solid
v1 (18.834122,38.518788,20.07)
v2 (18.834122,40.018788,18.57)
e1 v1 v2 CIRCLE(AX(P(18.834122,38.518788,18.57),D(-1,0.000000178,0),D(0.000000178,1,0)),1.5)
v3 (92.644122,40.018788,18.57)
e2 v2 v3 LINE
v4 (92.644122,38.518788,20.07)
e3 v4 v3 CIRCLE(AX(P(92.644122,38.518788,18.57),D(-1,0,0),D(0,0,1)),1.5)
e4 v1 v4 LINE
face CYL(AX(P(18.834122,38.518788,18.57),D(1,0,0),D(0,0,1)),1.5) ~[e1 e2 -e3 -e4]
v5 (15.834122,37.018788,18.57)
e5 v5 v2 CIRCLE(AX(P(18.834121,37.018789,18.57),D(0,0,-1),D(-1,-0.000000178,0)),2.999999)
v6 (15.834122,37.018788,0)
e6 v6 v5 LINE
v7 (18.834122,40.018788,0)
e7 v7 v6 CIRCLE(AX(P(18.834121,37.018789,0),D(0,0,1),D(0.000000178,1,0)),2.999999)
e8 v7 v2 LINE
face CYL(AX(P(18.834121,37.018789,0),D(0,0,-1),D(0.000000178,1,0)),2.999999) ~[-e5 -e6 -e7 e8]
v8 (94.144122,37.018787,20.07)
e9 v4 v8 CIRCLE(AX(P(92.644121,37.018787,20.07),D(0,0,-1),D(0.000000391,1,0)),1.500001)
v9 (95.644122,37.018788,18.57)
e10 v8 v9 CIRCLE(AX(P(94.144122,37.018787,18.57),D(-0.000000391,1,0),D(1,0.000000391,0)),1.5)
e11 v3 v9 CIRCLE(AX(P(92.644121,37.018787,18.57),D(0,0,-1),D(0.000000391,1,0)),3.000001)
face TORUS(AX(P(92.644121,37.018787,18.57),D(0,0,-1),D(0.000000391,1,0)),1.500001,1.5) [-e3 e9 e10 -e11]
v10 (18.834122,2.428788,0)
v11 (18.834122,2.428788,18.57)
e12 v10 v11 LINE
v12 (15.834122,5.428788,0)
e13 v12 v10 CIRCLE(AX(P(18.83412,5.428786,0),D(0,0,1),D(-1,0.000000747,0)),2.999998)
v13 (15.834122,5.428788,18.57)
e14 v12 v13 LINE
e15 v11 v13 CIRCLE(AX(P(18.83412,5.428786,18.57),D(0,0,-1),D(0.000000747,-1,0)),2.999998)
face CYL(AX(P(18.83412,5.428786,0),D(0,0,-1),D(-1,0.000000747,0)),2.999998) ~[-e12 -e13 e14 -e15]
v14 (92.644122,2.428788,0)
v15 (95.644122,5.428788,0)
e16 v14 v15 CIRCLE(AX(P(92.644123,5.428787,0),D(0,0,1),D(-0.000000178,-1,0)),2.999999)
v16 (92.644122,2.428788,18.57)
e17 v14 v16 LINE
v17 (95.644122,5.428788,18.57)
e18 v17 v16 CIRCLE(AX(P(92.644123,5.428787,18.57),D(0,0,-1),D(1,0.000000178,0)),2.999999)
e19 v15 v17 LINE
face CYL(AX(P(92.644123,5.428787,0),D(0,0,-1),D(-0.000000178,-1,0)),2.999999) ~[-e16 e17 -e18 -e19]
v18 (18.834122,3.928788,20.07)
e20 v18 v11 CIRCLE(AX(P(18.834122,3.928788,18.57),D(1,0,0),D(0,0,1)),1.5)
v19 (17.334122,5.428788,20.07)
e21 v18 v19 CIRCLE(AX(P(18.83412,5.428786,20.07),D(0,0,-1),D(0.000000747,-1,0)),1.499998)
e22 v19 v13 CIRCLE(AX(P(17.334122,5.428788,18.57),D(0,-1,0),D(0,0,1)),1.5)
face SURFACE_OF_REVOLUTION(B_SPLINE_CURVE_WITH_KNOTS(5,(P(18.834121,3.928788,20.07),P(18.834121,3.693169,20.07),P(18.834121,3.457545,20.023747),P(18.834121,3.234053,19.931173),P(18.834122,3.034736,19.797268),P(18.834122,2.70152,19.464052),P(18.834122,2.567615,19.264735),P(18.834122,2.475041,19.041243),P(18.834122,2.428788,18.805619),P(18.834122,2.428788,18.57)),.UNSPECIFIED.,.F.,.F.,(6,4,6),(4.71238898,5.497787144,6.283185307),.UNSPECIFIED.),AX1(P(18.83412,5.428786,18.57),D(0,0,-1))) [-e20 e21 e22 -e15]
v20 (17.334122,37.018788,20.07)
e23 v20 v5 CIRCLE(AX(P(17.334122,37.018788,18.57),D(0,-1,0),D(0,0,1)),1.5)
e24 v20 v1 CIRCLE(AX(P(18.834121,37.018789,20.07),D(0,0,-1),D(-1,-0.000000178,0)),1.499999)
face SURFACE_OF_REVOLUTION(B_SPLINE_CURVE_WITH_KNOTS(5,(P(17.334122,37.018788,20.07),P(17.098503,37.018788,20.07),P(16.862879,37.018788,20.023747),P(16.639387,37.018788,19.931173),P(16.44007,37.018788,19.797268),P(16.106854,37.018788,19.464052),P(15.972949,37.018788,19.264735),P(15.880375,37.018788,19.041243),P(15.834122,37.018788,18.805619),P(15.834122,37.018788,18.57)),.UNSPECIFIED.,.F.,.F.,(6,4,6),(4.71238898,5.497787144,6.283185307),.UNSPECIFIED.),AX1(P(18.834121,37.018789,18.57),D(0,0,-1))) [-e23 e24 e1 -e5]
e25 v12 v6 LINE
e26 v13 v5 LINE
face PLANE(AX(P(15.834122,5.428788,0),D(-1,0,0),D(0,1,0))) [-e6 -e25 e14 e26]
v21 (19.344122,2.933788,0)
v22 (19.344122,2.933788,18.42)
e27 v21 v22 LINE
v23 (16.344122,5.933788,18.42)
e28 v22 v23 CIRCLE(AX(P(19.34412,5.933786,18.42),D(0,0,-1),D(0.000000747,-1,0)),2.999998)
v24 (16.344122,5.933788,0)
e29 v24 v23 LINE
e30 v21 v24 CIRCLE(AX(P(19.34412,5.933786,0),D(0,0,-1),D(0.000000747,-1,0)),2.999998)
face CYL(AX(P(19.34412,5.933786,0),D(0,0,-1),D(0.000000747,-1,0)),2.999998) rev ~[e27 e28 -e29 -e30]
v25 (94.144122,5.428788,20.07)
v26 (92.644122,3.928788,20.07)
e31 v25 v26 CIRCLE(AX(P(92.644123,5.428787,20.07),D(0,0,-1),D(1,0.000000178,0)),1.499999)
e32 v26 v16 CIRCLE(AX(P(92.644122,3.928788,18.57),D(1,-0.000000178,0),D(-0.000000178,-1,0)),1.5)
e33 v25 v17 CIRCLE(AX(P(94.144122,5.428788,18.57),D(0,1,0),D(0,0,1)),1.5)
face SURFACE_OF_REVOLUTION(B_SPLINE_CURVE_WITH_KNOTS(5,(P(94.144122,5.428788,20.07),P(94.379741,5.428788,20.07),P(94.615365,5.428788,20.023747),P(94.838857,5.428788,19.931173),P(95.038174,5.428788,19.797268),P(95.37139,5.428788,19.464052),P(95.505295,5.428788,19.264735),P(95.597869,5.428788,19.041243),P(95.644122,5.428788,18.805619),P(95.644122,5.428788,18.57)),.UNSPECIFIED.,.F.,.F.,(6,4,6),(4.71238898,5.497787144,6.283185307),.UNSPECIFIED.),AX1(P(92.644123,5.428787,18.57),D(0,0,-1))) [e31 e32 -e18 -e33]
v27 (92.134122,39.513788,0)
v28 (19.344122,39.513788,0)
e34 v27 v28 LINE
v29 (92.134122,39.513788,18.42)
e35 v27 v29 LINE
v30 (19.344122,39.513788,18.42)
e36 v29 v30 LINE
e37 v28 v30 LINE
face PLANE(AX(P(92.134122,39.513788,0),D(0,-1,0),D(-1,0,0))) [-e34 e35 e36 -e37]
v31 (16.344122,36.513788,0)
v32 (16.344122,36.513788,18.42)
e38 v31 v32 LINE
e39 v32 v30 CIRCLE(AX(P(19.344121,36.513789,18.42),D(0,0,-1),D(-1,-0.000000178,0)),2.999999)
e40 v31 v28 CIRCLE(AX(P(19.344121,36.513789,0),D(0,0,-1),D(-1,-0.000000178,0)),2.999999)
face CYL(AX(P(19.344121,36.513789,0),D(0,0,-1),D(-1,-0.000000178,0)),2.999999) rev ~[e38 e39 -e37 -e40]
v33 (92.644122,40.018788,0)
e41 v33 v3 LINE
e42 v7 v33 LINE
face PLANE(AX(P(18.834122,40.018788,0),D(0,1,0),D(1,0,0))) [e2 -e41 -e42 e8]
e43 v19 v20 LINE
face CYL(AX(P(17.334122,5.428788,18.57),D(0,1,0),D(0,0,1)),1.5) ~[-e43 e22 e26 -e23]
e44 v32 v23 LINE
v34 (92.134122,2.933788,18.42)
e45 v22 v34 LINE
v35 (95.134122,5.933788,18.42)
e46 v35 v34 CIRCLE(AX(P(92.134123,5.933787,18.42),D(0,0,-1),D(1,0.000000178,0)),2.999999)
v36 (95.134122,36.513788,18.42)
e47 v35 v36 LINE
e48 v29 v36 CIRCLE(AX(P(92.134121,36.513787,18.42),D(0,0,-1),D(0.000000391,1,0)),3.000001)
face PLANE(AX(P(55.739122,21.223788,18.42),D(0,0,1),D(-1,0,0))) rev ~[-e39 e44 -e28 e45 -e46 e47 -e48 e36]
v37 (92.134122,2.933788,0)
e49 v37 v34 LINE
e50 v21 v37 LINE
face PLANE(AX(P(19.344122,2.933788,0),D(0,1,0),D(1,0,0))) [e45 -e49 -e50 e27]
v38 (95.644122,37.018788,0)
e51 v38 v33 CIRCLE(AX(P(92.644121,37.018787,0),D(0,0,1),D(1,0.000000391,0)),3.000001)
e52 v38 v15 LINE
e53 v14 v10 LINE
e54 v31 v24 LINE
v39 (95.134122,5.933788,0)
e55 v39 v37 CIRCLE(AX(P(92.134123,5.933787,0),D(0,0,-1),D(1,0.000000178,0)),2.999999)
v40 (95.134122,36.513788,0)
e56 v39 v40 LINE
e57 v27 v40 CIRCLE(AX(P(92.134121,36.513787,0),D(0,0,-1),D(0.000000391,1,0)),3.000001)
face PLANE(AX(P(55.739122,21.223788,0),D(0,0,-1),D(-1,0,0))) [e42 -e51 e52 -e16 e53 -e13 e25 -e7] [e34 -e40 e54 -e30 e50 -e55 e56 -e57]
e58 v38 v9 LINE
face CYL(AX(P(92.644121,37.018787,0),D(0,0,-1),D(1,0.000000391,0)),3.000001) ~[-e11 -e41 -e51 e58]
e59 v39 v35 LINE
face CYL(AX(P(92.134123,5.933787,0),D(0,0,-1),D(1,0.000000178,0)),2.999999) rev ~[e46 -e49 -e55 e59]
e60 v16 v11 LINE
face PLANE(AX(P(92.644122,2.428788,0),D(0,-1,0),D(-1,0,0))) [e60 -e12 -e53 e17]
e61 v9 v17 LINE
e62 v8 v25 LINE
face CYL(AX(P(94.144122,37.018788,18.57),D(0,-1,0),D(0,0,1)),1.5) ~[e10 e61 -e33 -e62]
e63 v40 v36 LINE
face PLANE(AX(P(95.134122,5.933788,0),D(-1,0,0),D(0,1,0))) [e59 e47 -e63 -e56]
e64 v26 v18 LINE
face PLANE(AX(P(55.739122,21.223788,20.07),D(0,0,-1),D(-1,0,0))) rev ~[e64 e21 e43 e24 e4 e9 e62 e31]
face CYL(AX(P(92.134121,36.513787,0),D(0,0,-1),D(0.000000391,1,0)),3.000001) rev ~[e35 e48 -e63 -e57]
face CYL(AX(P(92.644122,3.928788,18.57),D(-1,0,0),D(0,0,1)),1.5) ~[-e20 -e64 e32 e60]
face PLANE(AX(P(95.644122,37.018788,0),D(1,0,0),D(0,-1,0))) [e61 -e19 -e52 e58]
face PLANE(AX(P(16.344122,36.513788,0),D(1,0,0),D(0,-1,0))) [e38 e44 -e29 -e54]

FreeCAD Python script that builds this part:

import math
import FreeCAD as App
import Part
import Sketcher
from FreeCAD import Vector
Q = App.Units.Quantity


def edges_at(feature, points):
    """Names of the edges that pass closest to the given points."""
    edges = feature.Shape.Edges
    near = lambda p: min(range(len(edges)), key=lambda i: edges[i].distToShape(Part.Vertex(*p))[0])
    return sorted({f"Edge{near(p) + 1}" for p in points})

doc = App.newDocument("Part")
body = doc.addObject("PartDesign::Body", "Body")

sketch1 = body.newObject("Sketcher::SketchObject", "Sketch")
sketch1.AttachmentSupport = (doc.getObject("XY_Plane"), [""])
sketch1.MapMode = "FlatFace"
sketch1.addGeometry([
    Part.LineSegment(Vector(92.644122, 40.018788, 0), Vector(18.834122, 40.018788, 0)),
    Part.ArcOfCircle(Part.Circle(Vector(18.834121, 37.018789, 0), Vector(0, 0, 1), 2.999999), math.radians(89.99999), math.radians(180.00001)),
    Part.LineSegment(Vector(15.834122, 37.018788, 0), Vector(15.834122, 5.428788, 0)),
    Part.ArcOfCircle(Part.Circle(Vector(18.83412, 5.428786, 0), Vector(0, 0, 1), 2.999998), math.radians(179.999957), math.radians(270.000043)),
    Part.LineSegment(Vector(18.834122, 2.428788, 0), Vector(92.644122, 2.428788, 0)),
    Part.ArcOfCircle(Part.Circle(Vector(92.644123, 5.428787, 0), Vector(0, 0, 1), 2.999999), math.radians(-90.00001), math.radians(0.00001)),
    Part.LineSegment(Vector(95.644122, 5.428788, 0), Vector(95.644122, 37.018788, 0)),
    Part.ArcOfCircle(Part.Circle(Vector(92.644121, 37.018787, 0), Vector(0, 0, 1), 3.000001), math.radians(0.000022), math.radians(89.999978)),
], False)
sketch1.addConstraint([
    Sketcher.Constraint("Tangent", 0, 2, 1, 1),
    Sketcher.Constraint("Tangent", 1, 2, 2, 1),
    Sketcher.Constraint("Tangent", 2, 2, 3, 1),
    Sketcher.Constraint("Tangent", 3, 2, 4, 1),
    Sketcher.Constraint("Tangent", 4, 2, 5, 1),
    Sketcher.Constraint("Tangent", 5, 2, 6, 1),
    Sketcher.Constraint("Tangent", 6, 2, 7, 1),
    Sketcher.Constraint("Tangent", 7, 2, 0, 1),
    Sketcher.Constraint("Horizontal", 0),
    Sketcher.Constraint("Vertical", 2),
    Sketcher.Constraint("Horizontal", 4),
    Sketcher.Constraint("Vertical", 6),
    Sketcher.Constraint("Equal", 1, 3),
    Sketcher.Constraint("Equal", 3, 5),
    Sketcher.Constraint("Equal", 5, 7),
    Sketcher.Constraint("Radius", 1, Q("2.999999 mm")),
    Sketcher.Constraint("DistanceX", 0, 2, 0, 1, Q("73.81 mm")),
    Sketcher.Constraint("DistanceY", 2, 2, 2, 1, Q("31.59 mm")),
    Sketcher.Constraint("DistanceX", -1, 1, 1, 3, Q("18.834121 mm")),
    Sketcher.Constraint("DistanceY", -1, 1, 1, 3, Q("37.018789 mm")),
])
pad1 = body.newObject("PartDesign::Pad", "Pad")
pad1.Profile = sketch1
pad1.Length = 20.07

sketch2 = body.newObject("Sketcher::SketchObject", "Sketch001")
sketch2.AttachmentSupport = (doc.getObject("XY_Plane"), [""])
sketch2.MapMode = "FlatFace"
sketch2.addGeometry([
    Part.LineSegment(Vector(92.134122, 2.933788, 0), Vector(19.344122, 2.933788, 0)),
    Part.ArcOfCircle(Part.Circle(Vector(19.34412, 5.933786, 0), Vector(0, 0, 1), 2.999998), math.radians(179.999957), math.radians(270.000043)),
    Part.LineSegment(Vector(16.344122, 5.933788, 0), Vector(16.344122, 36.513788, 0)),
    Part.ArcOfCircle(Part.Circle(Vector(19.344121, 36.513789, 0), Vector(0, 0, 1), 2.999999), math.radians(89.99999), math.radians(180.00001)),
    Part.LineSegment(Vector(19.344122, 39.513788, 0), Vector(92.134122, 39.513788, 0)),
    Part.ArcOfCircle(Part.Circle(Vector(92.134121, 36.513787, 0), Vector(0, 0, 1), 3.000001), math.radians(0.000022), math.radians(89.999978)),
    Part.LineSegment(Vector(95.134122, 36.513788, 0), Vector(95.134122, 5.933788, 0)),
    Part.ArcOfCircle(Part.Circle(Vector(92.134123, 5.933787, 0), Vector(0, 0, 1), 2.999999), math.radians(-90.00001), math.radians(0.00001)),
], False)
sketch2.addConstraint([
    Sketcher.Constraint("Tangent", 0, 2, 1, 2),
    Sketcher.Constraint("Tangent", 1, 1, 2, 1),
    Sketcher.Constraint("Tangent", 2, 2, 3, 2),
    Sketcher.Constraint("Tangent", 3, 1, 4, 1),
    Sketcher.Constraint("Tangent", 4, 2, 5, 2),
    Sketcher.Constraint("Tangent", 5, 1, 6, 1),
    Sketcher.Constraint("Tangent", 6, 2, 7, 2),
    Sketcher.Constraint("Tangent", 7, 1, 0, 1),
    Sketcher.Constraint("Horizontal", 0),
    Sketcher.Constraint("Vertical", 2),
    Sketcher.Constraint("Horizontal", 4),
    Sketcher.Constraint("Vertical", 6),
    Sketcher.Constraint("Equal", 1, 3),
    Sketcher.Constraint("Equal", 3, 5),
    Sketcher.Constraint("Equal", 5, 7),
    Sketcher.Constraint("Radius", 3, Q("2.999999 mm")),
    Sketcher.Constraint("DistanceX", 0, 2, 0, 1, Q("72.79 mm")),
    Sketcher.Constraint("DistanceY", 2, 1, 2, 2, Q("30.58 mm")),
    Sketcher.Constraint("DistanceX", -1, 1, 1, 3, Q("19.34412 mm")),
    Sketcher.Constraint("DistanceY", -1, 1, 3, 3, Q("36.513789 mm")),
])
pocket1 = body.newObject("PartDesign::Pocket", "Pocket")
pocket1.Profile = sketch2
pocket1.Length = 18.42
pocket1.Reversed = True
doc.recompute()

fillet = body.newObject("PartDesign::Fillet", "Fillet")
fillet.Base = (pocket1, edges_at(pocket1, [
    (15.834, 21.224, 20.07),
    (16.713, 39.14, 20.07),
    (55.739, 40.019, 20.07),
    (94.765, 39.14, 20.07),
    (95.644, 21.224, 20.07),
    (94.765, 3.307, 20.07),
    (55.739, 2.429, 20.07),
    (16.713, 3.307, 20.07),
]))
fillet.Radius = 1.5

doc.recompute()
